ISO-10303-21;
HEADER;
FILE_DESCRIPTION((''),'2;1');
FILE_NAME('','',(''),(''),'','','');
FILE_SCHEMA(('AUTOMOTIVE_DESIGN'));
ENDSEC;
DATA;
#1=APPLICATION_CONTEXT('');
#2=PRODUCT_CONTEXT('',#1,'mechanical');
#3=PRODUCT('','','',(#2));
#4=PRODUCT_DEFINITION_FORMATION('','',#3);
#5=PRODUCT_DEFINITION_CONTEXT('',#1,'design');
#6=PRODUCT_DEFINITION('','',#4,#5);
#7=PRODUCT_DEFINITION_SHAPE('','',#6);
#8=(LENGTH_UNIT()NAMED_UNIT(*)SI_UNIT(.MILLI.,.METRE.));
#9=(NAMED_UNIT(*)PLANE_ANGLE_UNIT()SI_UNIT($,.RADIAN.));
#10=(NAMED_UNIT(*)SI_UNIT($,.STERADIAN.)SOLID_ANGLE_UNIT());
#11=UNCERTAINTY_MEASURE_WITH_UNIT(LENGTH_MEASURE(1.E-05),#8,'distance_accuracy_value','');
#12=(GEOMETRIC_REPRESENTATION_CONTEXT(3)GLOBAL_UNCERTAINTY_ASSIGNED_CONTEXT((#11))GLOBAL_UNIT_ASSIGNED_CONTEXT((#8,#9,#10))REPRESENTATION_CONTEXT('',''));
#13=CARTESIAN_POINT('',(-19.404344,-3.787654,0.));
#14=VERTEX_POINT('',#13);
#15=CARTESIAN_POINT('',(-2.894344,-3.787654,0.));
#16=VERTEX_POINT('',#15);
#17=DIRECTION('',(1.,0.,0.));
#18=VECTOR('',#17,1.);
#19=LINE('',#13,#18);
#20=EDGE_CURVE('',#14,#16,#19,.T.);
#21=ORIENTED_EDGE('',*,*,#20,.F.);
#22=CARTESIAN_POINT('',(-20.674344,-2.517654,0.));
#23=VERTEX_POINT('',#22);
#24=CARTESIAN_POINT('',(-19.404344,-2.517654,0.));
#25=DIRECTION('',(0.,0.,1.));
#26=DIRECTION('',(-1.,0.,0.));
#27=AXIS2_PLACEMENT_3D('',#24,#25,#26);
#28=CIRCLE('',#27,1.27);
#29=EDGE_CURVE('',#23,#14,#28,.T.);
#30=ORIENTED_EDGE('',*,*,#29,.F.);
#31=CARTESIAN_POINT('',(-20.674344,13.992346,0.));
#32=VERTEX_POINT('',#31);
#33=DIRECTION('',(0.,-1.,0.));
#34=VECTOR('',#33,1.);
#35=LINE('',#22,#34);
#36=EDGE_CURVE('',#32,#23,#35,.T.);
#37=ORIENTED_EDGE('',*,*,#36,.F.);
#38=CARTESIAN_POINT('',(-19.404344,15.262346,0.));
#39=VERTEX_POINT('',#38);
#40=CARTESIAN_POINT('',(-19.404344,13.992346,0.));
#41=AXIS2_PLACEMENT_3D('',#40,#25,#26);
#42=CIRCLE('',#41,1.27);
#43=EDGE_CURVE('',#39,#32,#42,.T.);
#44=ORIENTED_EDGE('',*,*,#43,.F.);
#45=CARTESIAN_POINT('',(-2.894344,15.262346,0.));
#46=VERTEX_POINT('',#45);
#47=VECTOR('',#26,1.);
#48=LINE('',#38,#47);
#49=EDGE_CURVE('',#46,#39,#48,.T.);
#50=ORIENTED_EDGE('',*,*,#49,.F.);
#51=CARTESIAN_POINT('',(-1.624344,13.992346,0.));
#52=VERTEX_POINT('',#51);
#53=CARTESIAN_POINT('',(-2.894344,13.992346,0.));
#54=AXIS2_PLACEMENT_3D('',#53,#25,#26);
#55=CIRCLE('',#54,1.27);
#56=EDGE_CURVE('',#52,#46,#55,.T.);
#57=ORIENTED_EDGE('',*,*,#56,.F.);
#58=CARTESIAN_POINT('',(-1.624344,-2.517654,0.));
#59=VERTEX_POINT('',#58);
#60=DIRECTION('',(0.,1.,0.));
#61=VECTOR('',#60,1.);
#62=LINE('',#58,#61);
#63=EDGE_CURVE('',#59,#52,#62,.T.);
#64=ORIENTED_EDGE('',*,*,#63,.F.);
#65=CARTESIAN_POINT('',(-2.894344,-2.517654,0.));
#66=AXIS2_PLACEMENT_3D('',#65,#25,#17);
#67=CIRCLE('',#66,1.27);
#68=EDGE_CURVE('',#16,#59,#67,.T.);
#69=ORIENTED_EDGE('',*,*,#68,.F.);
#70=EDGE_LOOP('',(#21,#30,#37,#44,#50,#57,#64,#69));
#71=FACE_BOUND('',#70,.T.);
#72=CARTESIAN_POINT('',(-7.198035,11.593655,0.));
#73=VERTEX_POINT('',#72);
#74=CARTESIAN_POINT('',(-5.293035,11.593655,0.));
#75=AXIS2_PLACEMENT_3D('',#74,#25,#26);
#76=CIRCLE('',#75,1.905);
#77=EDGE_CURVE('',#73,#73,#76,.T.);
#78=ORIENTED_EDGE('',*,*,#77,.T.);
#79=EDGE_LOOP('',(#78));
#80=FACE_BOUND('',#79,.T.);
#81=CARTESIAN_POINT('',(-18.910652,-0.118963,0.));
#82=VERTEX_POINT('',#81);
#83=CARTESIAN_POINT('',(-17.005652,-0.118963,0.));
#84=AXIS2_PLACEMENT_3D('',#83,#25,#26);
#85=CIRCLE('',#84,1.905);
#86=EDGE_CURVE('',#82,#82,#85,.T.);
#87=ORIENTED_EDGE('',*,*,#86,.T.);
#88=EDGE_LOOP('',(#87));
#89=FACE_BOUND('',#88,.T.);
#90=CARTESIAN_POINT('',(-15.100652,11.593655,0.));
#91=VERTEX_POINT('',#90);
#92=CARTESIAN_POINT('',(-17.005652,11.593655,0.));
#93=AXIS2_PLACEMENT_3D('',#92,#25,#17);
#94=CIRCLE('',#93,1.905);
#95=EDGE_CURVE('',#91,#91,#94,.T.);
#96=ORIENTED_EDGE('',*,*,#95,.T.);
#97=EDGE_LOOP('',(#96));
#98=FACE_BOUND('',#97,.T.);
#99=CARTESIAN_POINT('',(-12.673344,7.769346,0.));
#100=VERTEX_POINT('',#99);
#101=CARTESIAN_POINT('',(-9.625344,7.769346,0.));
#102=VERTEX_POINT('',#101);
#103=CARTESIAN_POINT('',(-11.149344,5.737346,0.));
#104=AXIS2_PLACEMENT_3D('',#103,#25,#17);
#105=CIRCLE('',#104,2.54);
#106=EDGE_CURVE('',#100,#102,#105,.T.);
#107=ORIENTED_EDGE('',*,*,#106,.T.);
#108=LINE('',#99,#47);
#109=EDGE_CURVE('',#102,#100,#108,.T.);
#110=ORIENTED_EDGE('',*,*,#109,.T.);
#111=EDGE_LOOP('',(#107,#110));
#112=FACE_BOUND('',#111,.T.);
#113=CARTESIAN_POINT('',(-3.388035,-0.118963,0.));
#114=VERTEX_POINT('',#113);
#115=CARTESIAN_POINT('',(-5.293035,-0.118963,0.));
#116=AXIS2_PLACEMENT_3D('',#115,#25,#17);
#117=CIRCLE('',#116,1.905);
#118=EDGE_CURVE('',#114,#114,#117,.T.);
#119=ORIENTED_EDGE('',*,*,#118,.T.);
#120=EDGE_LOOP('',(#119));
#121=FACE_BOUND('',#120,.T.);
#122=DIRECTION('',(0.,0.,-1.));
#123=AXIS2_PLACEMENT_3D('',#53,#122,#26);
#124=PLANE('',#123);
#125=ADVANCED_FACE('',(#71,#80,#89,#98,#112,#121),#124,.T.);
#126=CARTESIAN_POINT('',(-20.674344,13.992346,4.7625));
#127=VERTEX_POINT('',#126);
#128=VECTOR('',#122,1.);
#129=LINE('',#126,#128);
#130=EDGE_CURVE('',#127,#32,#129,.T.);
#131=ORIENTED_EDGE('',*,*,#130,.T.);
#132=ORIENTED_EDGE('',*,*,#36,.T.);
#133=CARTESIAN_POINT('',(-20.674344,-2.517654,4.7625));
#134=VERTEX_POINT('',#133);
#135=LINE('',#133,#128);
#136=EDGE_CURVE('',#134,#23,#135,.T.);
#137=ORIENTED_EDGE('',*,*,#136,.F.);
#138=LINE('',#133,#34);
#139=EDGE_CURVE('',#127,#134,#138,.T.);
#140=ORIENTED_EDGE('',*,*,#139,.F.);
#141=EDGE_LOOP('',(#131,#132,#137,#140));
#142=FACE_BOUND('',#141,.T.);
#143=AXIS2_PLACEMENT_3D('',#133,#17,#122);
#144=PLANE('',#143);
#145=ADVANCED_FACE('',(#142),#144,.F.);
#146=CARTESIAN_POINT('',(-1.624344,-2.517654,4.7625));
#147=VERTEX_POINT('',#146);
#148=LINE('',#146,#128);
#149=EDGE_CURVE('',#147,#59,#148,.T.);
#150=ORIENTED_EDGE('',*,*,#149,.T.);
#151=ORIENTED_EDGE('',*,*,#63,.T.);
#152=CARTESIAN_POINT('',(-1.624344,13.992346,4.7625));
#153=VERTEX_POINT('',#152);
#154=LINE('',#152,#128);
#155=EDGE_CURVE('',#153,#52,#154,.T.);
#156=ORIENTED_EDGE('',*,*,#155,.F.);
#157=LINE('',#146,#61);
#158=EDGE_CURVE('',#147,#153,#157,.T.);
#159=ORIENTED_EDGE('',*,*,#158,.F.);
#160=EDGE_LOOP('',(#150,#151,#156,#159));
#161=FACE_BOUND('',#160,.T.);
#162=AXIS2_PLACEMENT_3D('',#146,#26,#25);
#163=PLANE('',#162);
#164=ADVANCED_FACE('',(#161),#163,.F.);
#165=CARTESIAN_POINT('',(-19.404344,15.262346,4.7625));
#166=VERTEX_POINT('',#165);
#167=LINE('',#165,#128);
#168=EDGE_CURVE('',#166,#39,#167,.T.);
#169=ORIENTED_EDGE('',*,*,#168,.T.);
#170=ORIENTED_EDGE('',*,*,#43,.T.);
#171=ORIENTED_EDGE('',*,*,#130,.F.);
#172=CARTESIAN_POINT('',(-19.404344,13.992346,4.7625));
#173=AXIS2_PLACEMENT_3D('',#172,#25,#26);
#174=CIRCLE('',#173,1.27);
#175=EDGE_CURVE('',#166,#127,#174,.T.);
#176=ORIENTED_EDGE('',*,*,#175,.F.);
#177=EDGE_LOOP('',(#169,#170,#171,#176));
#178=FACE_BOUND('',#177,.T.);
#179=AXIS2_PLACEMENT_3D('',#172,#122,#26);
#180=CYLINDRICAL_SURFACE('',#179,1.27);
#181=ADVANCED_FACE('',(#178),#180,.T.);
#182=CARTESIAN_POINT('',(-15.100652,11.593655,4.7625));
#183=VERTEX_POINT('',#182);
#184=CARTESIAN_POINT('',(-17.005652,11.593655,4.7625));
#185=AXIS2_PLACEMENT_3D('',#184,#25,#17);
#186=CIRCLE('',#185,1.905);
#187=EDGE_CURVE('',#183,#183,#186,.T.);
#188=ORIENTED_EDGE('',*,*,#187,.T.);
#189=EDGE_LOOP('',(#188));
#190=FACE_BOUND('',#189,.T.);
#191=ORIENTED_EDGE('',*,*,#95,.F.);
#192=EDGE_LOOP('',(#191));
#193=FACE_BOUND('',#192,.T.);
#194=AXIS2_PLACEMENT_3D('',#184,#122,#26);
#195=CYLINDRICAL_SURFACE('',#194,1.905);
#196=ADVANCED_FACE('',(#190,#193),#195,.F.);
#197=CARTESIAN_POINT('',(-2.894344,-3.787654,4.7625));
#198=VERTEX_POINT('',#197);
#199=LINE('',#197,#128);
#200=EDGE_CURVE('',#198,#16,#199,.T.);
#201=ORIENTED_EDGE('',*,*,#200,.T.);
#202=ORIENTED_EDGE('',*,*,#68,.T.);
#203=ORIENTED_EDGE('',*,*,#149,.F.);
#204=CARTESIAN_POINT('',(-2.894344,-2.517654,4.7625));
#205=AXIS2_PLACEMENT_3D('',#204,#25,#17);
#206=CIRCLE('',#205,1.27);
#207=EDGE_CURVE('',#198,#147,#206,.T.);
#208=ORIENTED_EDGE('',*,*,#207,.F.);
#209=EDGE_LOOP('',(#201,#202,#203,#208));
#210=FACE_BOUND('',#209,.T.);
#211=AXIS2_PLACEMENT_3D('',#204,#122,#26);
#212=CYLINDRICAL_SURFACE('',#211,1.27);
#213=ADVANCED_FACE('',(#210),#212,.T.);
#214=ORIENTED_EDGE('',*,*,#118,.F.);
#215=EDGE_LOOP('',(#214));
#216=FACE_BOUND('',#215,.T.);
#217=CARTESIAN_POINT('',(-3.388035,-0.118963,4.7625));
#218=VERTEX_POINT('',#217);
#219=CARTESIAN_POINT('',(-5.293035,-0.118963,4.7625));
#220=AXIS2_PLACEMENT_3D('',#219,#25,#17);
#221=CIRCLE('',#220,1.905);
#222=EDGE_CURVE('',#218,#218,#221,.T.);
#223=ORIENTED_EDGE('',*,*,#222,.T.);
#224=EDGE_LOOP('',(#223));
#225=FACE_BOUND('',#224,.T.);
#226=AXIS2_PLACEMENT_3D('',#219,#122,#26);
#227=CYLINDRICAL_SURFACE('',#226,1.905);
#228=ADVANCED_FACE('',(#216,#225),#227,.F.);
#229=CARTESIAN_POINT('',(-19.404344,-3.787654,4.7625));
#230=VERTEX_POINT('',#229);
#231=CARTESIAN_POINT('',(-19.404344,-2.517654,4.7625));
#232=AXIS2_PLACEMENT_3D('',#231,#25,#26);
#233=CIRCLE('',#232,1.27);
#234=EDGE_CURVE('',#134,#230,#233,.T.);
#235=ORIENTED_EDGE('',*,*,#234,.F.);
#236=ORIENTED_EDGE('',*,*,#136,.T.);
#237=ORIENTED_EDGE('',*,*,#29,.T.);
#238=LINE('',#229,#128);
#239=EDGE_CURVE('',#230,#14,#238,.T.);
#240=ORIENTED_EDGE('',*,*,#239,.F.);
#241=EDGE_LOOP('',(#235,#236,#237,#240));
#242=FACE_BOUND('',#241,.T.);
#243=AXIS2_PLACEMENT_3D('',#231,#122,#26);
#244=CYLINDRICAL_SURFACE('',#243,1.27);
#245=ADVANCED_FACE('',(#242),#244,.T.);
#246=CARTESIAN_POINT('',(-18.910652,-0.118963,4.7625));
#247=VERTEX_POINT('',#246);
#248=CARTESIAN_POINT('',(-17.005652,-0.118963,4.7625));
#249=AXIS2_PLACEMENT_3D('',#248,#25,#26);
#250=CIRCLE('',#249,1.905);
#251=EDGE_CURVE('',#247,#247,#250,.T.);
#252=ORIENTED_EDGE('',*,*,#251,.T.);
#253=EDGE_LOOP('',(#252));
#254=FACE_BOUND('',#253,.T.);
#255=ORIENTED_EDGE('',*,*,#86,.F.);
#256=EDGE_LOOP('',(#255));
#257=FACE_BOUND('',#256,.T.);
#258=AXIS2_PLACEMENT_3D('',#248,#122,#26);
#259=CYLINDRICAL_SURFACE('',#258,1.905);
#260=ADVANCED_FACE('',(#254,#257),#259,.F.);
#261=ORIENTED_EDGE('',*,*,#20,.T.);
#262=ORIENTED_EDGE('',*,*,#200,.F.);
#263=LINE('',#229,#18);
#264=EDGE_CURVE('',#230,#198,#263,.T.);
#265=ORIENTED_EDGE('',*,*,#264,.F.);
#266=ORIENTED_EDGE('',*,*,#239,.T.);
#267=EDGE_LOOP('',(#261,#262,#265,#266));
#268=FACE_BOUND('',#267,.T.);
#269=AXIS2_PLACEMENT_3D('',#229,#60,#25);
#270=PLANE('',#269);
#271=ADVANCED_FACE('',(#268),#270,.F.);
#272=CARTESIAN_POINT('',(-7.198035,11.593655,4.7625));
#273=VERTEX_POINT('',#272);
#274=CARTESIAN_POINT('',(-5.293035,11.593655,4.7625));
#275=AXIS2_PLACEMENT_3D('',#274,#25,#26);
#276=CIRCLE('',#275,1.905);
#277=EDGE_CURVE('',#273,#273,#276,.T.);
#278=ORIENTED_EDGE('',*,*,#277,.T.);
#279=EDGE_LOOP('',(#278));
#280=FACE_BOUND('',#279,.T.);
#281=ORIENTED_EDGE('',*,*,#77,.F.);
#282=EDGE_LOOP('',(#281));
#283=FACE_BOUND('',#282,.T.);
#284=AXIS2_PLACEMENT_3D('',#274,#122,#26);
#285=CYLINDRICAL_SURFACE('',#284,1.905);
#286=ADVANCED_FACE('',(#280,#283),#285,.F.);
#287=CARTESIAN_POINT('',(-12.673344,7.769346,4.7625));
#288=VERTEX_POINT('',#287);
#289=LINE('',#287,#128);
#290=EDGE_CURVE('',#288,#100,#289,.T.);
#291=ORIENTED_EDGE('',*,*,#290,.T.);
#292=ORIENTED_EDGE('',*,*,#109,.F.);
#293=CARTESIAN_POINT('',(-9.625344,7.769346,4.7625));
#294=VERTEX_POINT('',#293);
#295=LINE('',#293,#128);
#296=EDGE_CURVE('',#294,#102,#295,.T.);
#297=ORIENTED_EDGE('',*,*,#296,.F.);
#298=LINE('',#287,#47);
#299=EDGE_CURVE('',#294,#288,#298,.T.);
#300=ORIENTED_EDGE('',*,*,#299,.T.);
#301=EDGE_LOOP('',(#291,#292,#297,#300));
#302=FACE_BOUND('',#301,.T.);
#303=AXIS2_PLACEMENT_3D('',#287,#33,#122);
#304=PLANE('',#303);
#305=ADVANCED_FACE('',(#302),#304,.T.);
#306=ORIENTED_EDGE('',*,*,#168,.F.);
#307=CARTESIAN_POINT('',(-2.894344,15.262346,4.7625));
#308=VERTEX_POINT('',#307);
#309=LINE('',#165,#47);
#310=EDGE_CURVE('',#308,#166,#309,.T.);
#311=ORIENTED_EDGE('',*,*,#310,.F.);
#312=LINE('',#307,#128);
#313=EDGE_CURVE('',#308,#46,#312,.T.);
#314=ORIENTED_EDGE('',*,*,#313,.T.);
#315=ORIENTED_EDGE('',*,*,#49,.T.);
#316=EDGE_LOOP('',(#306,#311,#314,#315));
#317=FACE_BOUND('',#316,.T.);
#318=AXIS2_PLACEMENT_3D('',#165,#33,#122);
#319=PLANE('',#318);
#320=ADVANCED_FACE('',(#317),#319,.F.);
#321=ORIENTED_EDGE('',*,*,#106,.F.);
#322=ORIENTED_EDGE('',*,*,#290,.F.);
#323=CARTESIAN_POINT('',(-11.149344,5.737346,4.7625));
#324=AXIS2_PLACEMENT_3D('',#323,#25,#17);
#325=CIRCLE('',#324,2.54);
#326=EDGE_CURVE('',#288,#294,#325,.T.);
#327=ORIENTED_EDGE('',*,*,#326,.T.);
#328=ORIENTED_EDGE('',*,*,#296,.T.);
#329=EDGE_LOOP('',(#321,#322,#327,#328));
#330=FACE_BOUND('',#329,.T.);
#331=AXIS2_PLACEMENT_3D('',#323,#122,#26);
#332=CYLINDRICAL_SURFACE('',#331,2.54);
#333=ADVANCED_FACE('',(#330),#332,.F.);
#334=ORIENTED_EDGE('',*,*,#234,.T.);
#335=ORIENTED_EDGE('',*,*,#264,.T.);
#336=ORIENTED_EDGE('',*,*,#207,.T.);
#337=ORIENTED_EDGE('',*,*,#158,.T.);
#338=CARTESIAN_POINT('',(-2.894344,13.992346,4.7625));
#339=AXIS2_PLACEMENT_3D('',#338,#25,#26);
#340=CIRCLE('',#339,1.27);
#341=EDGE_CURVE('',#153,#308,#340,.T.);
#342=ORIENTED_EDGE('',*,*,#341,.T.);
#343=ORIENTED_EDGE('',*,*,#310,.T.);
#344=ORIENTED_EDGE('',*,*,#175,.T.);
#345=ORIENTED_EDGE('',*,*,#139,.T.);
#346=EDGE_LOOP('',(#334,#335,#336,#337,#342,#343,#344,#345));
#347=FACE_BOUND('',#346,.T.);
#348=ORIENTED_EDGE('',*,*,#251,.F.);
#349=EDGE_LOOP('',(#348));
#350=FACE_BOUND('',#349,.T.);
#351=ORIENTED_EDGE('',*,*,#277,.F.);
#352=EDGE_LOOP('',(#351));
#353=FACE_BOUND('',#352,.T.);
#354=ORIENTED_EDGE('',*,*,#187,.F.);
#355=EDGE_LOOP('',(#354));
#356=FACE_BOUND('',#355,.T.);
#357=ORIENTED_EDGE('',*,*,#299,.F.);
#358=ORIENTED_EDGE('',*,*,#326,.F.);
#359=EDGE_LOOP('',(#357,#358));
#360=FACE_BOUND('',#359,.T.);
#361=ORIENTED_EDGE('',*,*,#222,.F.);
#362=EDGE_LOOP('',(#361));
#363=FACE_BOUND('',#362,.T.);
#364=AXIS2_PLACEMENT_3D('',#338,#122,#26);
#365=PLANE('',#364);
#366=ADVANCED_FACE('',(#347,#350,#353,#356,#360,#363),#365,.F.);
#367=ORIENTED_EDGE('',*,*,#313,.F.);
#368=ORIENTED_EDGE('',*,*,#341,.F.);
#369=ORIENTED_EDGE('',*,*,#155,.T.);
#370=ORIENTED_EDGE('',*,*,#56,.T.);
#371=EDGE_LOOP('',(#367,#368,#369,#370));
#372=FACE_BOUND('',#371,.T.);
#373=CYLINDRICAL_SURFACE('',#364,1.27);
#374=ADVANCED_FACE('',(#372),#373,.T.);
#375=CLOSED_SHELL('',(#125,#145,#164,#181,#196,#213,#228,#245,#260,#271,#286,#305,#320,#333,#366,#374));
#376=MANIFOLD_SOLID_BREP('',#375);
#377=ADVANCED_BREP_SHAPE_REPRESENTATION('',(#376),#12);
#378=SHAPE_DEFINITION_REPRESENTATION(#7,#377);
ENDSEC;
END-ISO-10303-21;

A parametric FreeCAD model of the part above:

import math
import FreeCAD as App
import Part
import Sketcher

V = App.Vector
Q = App.Units.Quantity

doc = App.newDocument("Part")
body = doc.addObject("PartDesign::Body", "Body")

# Sketch on XY plane
sketch1 = body.newObject("Sketcher::SketchObject", "Sketch")
sketch1.AttachmentSupport = (doc.getObject("XY_Plane"), [""])
sketch1.MapMode = "FlatFace"
sketch1.addGeometry([
    Part.LineSegment(V(-19.4, -3.8, 0), V(-2.9, -3.8, 0)),  # 0
    Part.ArcOfCircle(Part.Circle(V(-2.9, -2.5, 0), V(0, 0, 1), 1.3), math.radians(-90), math.radians(0)),  # 1
    Part.LineSegment(V(-1.6, -2.5, 0), V(-1.6, 14, 0)),  # 2
    Part.ArcOfCircle(Part.Circle(V(-2.9, 14, 0), V(0, 0, 1), 1.3), math.radians(0), math.radians(90)),  # 3
    Part.LineSegment(V(-2.9, 15.3, 0), V(-19.4, 15.3, 0)),  # 4
    Part.ArcOfCircle(Part.Circle(V(-19.4, 14, 0), V(0, 0, 1), 1.3), math.radians(90), math.radians(180)),  # 5
    Part.LineSegment(V(-20.7, 14, 0), V(-20.7, -2.5, 0)),  # 6
    Part.ArcOfCircle(Part.Circle(V(-19.4, -2.5, 0), V(0, 0, 1), 1.3), math.radians(180), math.radians(270)),  # 7
    Part.Circle(V(-17, -0.1, 0), V(0, 0, 1), 1.9),  # 8
    Part.Circle(V(-5.3, -0.1, 0), V(0, 0, 1), 1.9),  # 9
    Part.ArcOfCircle(Part.Circle(V(-11.1, 5.7, 0), V(0, 0, 1), 2.5), math.radians(127), math.radians(413)),  # 10
    Part.LineSegment(V(-12.7, 7.8, 0), V(-9.6, 7.8, 0)),  # 11
    Part.Circle(V(-17, 11.6, 0), V(0, 0, 1), 1.9),  # 12
    Part.Circle(V(-5.3, 11.6, 0), V(0, 0, 1), 1.9),  # 13
], False)
sketch1.addConstraint([
    Sketcher.Constraint("Tangent", 0, 2, 1, 1),
    Sketcher.Constraint("Tangent", 1, 2, 2, 1),
    Sketcher.Constraint("Tangent", 2, 2, 3, 1),
    Sketcher.Constraint("Tangent", 3, 2, 4, 1),
    Sketcher.Constraint("Tangent", 4, 2, 5, 1),
    Sketcher.Constraint("Tangent", 5, 2, 6, 1),
    Sketcher.Constraint("Tangent", 6, 2, 7, 1),
    Sketcher.Constraint("Tangent", 7, 2, 0, 1),
    Sketcher.Constraint("Coincident", 10, 1, 11, 1),
    Sketcher.Constraint("Coincident", 11, 2, 10, 2),
    Sketcher.Constraint("Horizontal", 0),
    Sketcher.Constraint("Vertical", 2),
    Sketcher.Constraint("Horizontal", 4),
    Sketcher.Constraint("Vertical", 6),
    Sketcher.Constraint("Horizontal", 11),
    Sketcher.Constraint("Equal", 1, 3),
    Sketcher.Constraint("Equal", 3, 5),
    Sketcher.Constraint("Equal", 5, 7),
    Sketcher.Constraint("Equal", 8, 9),
    Sketcher.Constraint("Equal", 9, 12),
    Sketcher.Constraint("Equal", 12, 13),
    Sketcher.Constraint("Horizontal", 8, 3, 9, 3),
    Sketcher.Constraint("Horizontal", 12, 3, 13, 3),
    Sketcher.Constraint("Vertical", 8, 3, 12, 3),
    Sketcher.Constraint("Vertical", 9, 3, 13, 3),
    Sketcher.Constraint("Equal", 4, 2),
    Sketcher.Constraint("Radius", 10, Q("0.1 in")),
    Sketcher.Constraint("Diameter", 8, Q("0.15 in")),
    Sketcher.Constraint("Radius", 1, Q("0.05 in")),
    Sketcher.Constraint("DistanceX", 0, 1, 0, 2, Q("0.65 in")),
    Sketcher.Constraint("DistanceX", 11, 1, 11, 2, Q("0.12 in")),
    Sketcher.Constraint("DistanceX", 10, 3, 3, 3, Q("0.325 in")),
    Sketcher.Constraint("DistanceY", 10, 3, 3, 3, Q("0.325 in")),
    Sketcher.Constraint("DistanceX", 7, 3, 8, 3, 2.398691),
    Sketcher.Constraint("DistanceY", 7, 3, 8, 3, 2.398691),
    Sketcher.Constraint("DistanceX", 9, 3, 1, 3, 2.398691),
    Sketcher.Constraint("DistanceY", 12, 3, 5, 3, 2.398691),
    Sketcher.Constraint("DistanceX", 1, 3, -1, 1, 2.894344),
    Sketcher.Constraint("DistanceY", 1, 3, -1, 1, 2.517654),
])
pad1 = body.newObject("PartDesign::Pad", "Pad")
pad1.Profile = sketch1
pad1.Length = Q("0.1875 in")

doc.recompute()
